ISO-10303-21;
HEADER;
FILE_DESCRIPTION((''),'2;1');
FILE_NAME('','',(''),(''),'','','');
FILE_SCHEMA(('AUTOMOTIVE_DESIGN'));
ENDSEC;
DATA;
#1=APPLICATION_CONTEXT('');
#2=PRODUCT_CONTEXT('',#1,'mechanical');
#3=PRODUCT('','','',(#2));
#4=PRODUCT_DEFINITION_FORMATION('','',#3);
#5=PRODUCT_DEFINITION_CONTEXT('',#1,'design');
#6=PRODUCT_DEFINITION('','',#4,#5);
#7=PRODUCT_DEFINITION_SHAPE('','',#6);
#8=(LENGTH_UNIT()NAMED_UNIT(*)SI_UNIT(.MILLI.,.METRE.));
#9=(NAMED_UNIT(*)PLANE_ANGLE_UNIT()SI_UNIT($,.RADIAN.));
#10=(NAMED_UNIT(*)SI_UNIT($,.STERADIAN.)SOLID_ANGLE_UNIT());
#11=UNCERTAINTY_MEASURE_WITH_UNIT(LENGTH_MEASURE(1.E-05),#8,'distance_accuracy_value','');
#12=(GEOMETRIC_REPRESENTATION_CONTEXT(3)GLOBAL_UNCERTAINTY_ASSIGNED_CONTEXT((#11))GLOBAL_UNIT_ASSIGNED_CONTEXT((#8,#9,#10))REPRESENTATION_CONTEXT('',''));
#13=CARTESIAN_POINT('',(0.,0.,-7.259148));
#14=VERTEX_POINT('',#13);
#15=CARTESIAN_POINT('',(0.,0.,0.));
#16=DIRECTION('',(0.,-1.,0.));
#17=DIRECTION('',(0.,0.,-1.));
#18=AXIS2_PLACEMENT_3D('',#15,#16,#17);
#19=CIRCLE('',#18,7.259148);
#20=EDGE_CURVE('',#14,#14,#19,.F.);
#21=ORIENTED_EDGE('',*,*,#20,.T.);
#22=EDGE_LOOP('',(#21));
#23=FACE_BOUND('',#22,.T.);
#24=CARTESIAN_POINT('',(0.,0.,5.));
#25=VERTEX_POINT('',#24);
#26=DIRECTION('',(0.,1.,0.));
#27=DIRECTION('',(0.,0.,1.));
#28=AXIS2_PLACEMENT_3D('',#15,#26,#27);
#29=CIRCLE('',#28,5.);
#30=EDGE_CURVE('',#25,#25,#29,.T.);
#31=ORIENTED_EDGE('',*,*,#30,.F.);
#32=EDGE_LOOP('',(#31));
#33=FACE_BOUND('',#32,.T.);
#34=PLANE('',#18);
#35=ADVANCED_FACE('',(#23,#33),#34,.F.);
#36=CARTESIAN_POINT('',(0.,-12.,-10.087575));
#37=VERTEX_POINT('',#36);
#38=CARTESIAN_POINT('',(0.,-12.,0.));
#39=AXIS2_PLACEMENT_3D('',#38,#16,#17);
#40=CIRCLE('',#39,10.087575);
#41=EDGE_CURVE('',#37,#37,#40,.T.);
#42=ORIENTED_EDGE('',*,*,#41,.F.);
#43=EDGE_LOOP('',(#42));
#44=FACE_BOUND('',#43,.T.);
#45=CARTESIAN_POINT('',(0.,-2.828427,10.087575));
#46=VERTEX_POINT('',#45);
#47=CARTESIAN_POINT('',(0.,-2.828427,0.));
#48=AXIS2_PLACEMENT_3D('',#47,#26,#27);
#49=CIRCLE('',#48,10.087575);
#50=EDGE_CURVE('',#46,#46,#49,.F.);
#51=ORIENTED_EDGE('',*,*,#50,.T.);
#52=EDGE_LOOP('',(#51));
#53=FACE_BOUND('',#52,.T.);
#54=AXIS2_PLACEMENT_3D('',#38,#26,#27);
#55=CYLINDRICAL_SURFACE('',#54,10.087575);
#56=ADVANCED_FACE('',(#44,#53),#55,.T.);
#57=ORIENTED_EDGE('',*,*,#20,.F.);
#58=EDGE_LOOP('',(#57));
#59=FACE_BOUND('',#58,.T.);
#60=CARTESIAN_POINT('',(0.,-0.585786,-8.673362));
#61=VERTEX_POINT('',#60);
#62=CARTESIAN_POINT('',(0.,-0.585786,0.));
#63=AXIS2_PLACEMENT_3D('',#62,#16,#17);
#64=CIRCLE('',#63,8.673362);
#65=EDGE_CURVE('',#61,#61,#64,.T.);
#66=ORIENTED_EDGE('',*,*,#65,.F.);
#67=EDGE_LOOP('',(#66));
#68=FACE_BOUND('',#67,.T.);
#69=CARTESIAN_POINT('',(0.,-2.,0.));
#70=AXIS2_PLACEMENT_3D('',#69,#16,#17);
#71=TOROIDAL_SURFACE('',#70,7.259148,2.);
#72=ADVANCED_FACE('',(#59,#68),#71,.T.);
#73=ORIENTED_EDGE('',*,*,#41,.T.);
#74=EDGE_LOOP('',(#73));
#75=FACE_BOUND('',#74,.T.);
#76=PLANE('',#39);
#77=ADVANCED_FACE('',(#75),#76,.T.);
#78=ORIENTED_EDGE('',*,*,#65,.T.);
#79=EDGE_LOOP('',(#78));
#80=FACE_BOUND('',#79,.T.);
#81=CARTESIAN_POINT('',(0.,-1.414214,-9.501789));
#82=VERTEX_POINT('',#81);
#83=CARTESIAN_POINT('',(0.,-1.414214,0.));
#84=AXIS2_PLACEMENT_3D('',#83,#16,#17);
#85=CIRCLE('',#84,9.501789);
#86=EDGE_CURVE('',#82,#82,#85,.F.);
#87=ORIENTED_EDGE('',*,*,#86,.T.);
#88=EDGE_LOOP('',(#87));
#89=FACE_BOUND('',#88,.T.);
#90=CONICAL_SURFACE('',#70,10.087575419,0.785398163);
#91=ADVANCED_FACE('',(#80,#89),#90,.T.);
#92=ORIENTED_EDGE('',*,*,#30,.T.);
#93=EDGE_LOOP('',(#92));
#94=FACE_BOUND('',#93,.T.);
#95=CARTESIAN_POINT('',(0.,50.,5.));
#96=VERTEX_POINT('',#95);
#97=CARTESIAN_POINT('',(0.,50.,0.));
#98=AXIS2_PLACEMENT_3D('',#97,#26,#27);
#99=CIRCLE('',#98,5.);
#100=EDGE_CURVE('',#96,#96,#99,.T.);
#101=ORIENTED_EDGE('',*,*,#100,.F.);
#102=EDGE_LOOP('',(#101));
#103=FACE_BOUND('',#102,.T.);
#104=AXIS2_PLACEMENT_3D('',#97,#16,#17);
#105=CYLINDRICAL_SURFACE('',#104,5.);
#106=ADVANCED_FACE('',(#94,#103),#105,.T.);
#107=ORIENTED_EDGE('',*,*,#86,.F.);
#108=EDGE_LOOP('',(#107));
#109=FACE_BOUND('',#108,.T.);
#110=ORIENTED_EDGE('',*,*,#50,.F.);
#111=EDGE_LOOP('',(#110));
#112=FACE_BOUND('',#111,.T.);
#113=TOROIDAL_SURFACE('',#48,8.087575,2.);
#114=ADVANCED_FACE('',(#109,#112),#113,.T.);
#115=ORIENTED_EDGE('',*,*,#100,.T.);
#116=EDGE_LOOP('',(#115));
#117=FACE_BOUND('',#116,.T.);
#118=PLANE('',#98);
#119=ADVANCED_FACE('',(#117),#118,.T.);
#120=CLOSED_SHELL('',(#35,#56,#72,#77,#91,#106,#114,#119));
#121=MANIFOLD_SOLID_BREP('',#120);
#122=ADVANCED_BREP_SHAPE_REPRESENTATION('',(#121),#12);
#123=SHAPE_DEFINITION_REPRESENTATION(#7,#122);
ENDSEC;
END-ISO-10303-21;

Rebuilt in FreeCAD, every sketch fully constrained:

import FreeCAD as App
import Part
import Sketcher

V = App.Vector


def edges_at(feature, points):
    """Names of the edges that pass closest to the given points."""
    edges = feature.Shape.Edges
    near = lambda p: min(range(len(edges)), key=lambda i: edges[i].distToShape(Part.Vertex(*p))[0])
    return sorted({f"Edge{near(p) + 1}" for p in points})

doc = App.newDocument("Part")
body = doc.addObject("PartDesign::Body", "Body")

# Sketch on XZ plane
sketch1 = doc.addObject("Sketcher::SketchObject", "Sketch")
body.addObject(sketch1)
sketch1.AttachmentSupport = (doc.XZ_Plane, [""])
sketch1.MapMode = "FlatFace"
sketch1.addGeometry(Part.Circle(V(0, 0, 0), V(0, 0, 1), 5), False)
sketch1.addConstraint([
    Sketcher.Constraint("Coincident", 0, 3, -1, 1),
    Sketcher.Constraint("Diameter", 0, 10.0),
])
pad1 = doc.addObject("PartDesign::Pad", "Pad")
body.addObject(pad1)
pad1.Profile = sketch1
pad1.Length = 50
pad1.Reversed = True

# Sketch on XZ plane
sketch2 = doc.addObject("Sketcher::SketchObject", "Sketch001")
body.addObject(sketch2)
sketch2.AttachmentSupport = (doc.XZ_Plane, [""])
sketch2.MapMode = "FlatFace"
sketch2.addGeometry(Part.Circle(V(0, 0, 0), V(0, 0, 1), 10), False)
sketch2.addConstraint([
    Sketcher.Constraint("Coincident", 0, 3, -1, 1),
    Sketcher.Constraint("Diameter", 0, 20.175151),
])
pad2 = doc.addObject("PartDesign::Pad", "Pad001")
body.addObject(pad2)
pad2.Profile = sketch2
pad2.Length = 12
doc.recompute()

chamfer = doc.addObject("PartDesign::Chamfer", "Chamfer")
body.addObject(chamfer)
chamfer.Base = (pad2, edges_at(pad2, [(0, 0, 10.088)]))
chamfer.Size = 2
doc.recompute()

fillet = doc.addObject("PartDesign::Fillet", "Fillet")
body.addObject(fillet)
fillet.Base = (chamfer, edges_at(chamfer, [(0, 0, 8.088)]))
fillet.Radius = 2
doc.recompute()

fillet2 = doc.addObject("PartDesign::Fillet", "Fillet001")
body.addObject(fillet2)
fillet2.Base = (fillet, edges_at(fillet, [(0, -2, 10.088)]))
fillet2.Radius = 2

doc.recompute()
